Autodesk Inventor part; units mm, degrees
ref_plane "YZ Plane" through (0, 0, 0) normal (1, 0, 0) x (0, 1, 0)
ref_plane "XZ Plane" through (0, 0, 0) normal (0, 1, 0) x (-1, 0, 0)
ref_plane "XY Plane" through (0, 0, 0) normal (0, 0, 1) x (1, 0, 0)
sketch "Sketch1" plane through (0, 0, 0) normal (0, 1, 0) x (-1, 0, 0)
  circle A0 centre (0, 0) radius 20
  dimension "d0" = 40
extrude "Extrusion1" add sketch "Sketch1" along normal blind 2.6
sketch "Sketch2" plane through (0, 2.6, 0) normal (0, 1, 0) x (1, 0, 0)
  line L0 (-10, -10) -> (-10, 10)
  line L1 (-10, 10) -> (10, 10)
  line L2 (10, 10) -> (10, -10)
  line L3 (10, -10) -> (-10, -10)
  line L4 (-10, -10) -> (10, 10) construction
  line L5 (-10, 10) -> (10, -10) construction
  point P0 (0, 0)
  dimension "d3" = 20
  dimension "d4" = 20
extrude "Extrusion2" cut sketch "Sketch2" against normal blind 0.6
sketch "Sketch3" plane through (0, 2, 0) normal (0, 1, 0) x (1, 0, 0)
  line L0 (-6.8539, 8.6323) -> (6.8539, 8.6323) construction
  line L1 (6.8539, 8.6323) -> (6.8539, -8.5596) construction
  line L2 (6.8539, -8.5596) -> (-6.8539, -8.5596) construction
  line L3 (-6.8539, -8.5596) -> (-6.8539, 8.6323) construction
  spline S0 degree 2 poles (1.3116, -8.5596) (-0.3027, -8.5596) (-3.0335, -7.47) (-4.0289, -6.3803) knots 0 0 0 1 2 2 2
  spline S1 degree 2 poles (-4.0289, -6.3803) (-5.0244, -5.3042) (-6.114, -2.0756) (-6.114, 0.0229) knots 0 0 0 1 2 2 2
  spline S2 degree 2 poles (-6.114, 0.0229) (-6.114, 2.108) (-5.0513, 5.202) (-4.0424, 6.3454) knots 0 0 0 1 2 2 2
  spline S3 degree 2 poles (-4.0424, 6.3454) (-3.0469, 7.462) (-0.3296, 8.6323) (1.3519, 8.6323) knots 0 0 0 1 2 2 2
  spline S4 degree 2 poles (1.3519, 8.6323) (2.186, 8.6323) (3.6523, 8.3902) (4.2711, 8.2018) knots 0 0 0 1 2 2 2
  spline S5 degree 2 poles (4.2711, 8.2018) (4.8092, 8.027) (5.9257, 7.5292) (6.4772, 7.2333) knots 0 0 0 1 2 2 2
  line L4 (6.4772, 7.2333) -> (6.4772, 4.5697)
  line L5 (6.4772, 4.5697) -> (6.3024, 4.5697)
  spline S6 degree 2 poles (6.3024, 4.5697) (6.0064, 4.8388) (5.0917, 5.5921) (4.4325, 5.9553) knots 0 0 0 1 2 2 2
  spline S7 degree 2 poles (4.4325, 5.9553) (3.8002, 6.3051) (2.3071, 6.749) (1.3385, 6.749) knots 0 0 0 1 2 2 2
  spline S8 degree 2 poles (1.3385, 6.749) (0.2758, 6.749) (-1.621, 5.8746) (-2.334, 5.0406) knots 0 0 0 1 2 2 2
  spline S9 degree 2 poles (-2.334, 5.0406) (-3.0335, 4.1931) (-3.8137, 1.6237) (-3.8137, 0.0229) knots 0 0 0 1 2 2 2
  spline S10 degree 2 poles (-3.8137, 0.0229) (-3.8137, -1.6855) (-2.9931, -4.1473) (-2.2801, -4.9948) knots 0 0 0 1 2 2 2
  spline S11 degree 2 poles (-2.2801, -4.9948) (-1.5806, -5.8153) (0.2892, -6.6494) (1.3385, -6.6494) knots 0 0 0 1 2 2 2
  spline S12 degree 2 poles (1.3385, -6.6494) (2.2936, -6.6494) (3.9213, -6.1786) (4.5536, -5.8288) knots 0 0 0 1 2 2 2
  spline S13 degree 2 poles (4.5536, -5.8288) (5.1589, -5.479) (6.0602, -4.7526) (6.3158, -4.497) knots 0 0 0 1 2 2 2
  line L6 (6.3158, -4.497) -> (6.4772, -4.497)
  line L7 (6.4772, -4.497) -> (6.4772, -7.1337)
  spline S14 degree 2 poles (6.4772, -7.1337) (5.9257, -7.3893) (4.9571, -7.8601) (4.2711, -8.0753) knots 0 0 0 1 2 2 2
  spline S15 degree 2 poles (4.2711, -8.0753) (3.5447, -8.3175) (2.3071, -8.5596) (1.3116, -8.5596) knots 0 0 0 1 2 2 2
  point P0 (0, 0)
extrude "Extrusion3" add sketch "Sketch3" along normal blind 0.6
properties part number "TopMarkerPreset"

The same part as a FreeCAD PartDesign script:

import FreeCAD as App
import Part
import Sketcher
Q = App.Units.Quantity


def add_polygon(sketch, points):
    """Adds a closed chain of lines whose ends are joined by coincident constraints."""
    first, n = sketch.GeometryCount, len(points)
    for a, b in zip(points, points[1:] + points[:1]):
        sketch.addGeometry(Part.LineSegment(App.Vector(*a, 0), App.Vector(*b, 0)), False)
    for i in range(n):
        sketch.addConstraint(Sketcher.Constraint("Coincident", first + i, 2, first + (i + 1) % n, 1))

doc = App.newDocument("Part")
body = doc.addObject("PartDesign::Body", "Body")

# Sketch on XZ plane
sketch1 = body.newObject("Sketcher::SketchObject", "Sketch")
sketch1.AttachmentSupport = (doc.getObject("XZ_Plane"), [""])
sketch1.MapMode = "FlatFace"
sketch1.addGeometry(Part.Circle(App.Vector(0, 0, 0), App.Vector(0, 0, 1), 20), False)
sketch1.addConstraint(Sketcher.Constraint("Coincident", 0, 3, -1, 1))
sketch1.addConstraint(Sketcher.Constraint("Diameter", 0, Q("40 mm")))
pad1 = body.newObject("PartDesign::Pad", "Pad")
pad1.Profile = sketch1
pad1.Length = 2.6
pad1.Reversed = True

# Sketch on XZ plane
sketch2 = body.newObject("Sketcher::SketchObject", "Sketch001")
sketch2.AttachmentSupport = (doc.getObject("XZ_Plane"), [""])
sketch2.MapMode = "FlatFace"
sketch2.AttachmentOffset = App.Placement(App.Vector(0, 0, -2.6), App.Rotation())
add_polygon(sketch2, [(-10, -10), (-10, 10), (10, 10), (10, -10)])  # lines 0-3
sketch2.addConstraint(Sketcher.Constraint("Vertical", 0))
sketch2.addConstraint(Sketcher.Constraint("Horizontal", 1))
sketch2.addConstraint(Sketcher.Constraint("Vertical", 2))
sketch2.addConstraint(Sketcher.Constraint("Horizontal", 3))
sketch2.addConstraint(Sketcher.Constraint("Symmetric", 0, 2, 2, 2, -1, 1))
sketch2.addConstraint(Sketcher.Constraint("Equal", 3, 0))
sketch2.addConstraint(Sketcher.Constraint("DistanceX", 1, 1, 1, 2, Q("20 mm")))
pocket1 = body.newObject("PartDesign::Pocket", "Pocket")
pocket1.Profile = sketch2
pocket1.Length = 0.6
pocket1.Reversed = True

# Sketch on XZ plane
sketch3 = body.newObject("Sketcher::SketchObject", "Sketch002")
sketch3.AttachmentSupport = (doc.getObject("XZ_Plane"), [""])
sketch3.MapMode = "FlatFace"
sketch3.AttachmentOffset = App.Placement(App.Vector(0, 0, -2), App.Rotation())
sketch3.addGeometry(Part.BSplineCurve([App.Vector(1.3116, 8.5596, 0), App.Vector(-0.3027, 8.5596, 0), App.Vector(-3.0335, 7.47, 0), App.Vector(-4.0289, 6.3803, 0)], [3, 1, 3], [0, 1, 2], False, 2, [1, 1, 1, 1], False), False)
sketch3.addGeometry(Part.BSplineCurve([App.Vector(4.2711, 8.0753, 0), App.Vector(3.5447, 8.3175, 0), App.Vector(2.3071, 8.5596, 0), App.Vector(1.3116, 8.5596, 0)], [3, 1, 3], [0, 1, 2], False, 2, [1, 1, 1, 1], False), False)
sketch3.addGeometry(Part.BSplineCurve([App.Vector(6.4772, 7.1337, 0), App.Vector(5.9257, 7.3893, 0), App.Vector(4.9571, 7.8601, 0), App.Vector(4.2711, 8.0753, 0)], [3, 1, 3], [0, 1, 2], False, 2, [1, 1, 1, 1], False), False)
sketch3.addGeometry(Part.LineSegment(App.Vector(6.4772, 7.1337, 0), App.Vector(6.4772, 4.497, 0)), False)
sketch3.addGeometry(Part.LineSegment(App.Vector(6.4772, 4.497, 0), App.Vector(6.3158, 4.497, 0)), False)
sketch3.addGeometry(Part.BSplineCurve([App.Vector(4.5536, 5.8288, 0), App.Vector(5.1589, 5.479, 0), App.Vector(6.0602, 4.7526, 0), App.Vector(6.3158, 4.497, 0)], [3, 1, 3], [0, 1, 2], False, 2, [1, 1, 1, 1], False), False)
sketch3.addGeometry(Part.BSplineCurve([App.Vector(1.3385, 6.6494, 0), App.Vector(2.2936, 6.6494, 0), App.Vector(3.9213, 6.1786, 0), App.Vector(4.5536, 5.8288, 0)], [3, 1, 3], [0, 1, 2], False, 2, [1, 1, 1, 1], False), False)
sketch3.addGeometry(Part.BSplineCurve([App.Vector(-2.2801, 4.9948, 0), App.Vector(-1.5806, 5.8153, 0), App.Vector(0.2892, 6.6494, 0), App.Vector(1.3385, 6.6494, 0)], [3, 1, 3], [0, 1, 2], False, 2, [1, 1, 1, 1], False), False)
sketch3.addGeometry(Part.BSplineCurve([App.Vector(-3.8137, -0.0229, 0), App.Vector(-3.8137, 1.6855, 0), App.Vector(-2.9931, 4.1473, 0), App.Vector(-2.2801, 4.9948, 0)], [3, 1, 3], [0, 1, 2], False, 2, [1, 1, 1, 1], False), False)
sketch3.addGeometry(Part.BSplineCurve([App.Vector(-2.334, -5.0406, 0), App.Vector(-3.0335, -4.1931, 0), App.Vector(-3.8137, -1.6237, 0), App.Vector(-3.8137, -0.0229, 0)], [3, 1, 3], [0, 1, 2], False, 2, [1, 1, 1, 1], False), False)
sketch3.addGeometry(Part.BSplineCurve([App.Vector(1.3385, -6.749, 0), App.Vector(0.2758, -6.749, 0), App.Vector(-1.621, -5.8746, 0), App.Vector(-2.334, -5.0406, 0)], [3, 1, 3], [0, 1, 2], False, 2, [1, 1, 1, 1], False), False)
sketch3.addGeometry(Part.BSplineCurve([App.Vector(4.4325, -5.9553, 0), App.Vector(3.8002, -6.3051, 0), App.Vector(2.3071, -6.749, 0), App.Vector(1.3385, -6.749, 0)], [3, 1, 3], [0, 1, 2], False, 2, [1, 1, 1, 1], False), False)
sketch3.addGeometry(Part.BSplineCurve([App.Vector(6.3024, -4.5697, 0), App.Vector(6.0064, -4.8388, 0), App.Vector(5.0917, -5.5921, 0), App.Vector(4.4325, -5.9553, 0)], [3, 1, 3], [0, 1, 2], False, 2, [1, 1, 1, 1], False), False)
sketch3.addGeometry(Part.LineSegment(App.Vector(6.3024, -4.5697, 0), App.Vector(6.4772, -4.5697, 0)), False)
sketch3.addGeometry(Part.LineSegment(App.Vector(6.4772, -4.5697, 0), App.Vector(6.4772, -7.2333, 0)), False)
sketch3.addGeometry(Part.BSplineCurve([App.Vector(4.2711, -8.2018, 0), App.Vector(4.8092, -8.027, 0), App.Vector(5.9257, -7.5292, 0), App.Vector(6.4772, -7.2333, 0)], [3, 1, 3], [0, 1, 2], False, 2, [1, 1, 1, 1], False), False)
sketch3.addGeometry(Part.BSplineCurve([App.Vector(1.3519, -8.6323, 0), App.Vector(2.186, -8.6323, 0), App.Vector(3.6523, -8.3902, 0), App.Vector(4.2711, -8.2018, 0)], [3, 1, 3], [0, 1, 2], False, 2, [1, 1, 1, 1], False), False)
sketch3.addGeometry(Part.BSplineCurve([App.Vector(-4.0424, -6.3454, 0), App.Vector(-3.0469, -7.462, 0), App.Vector(-0.3296, -8.6323, 0), App.Vector(1.3519, -8.6323, 0)], [3, 1, 3], [0, 1, 2], False, 2, [1, 1, 1, 1], False), False)
sketch3.addGeometry(Part.BSplineCurve([App.Vector(-6.114, -0.0229, 0), App.Vector(-6.114, -2.108, 0), App.Vector(-5.0513, -5.202, 0), App.Vector(-4.0424, -6.3454, 0)], [3, 1, 3], [0, 1, 2], False, 2, [1, 1, 1, 1], False), False)
sketch3.addGeometry(Part.BSplineCurve([App.Vector(-4.0289, 6.3803, 0), App.Vector(-5.0244, 5.3042, 0), App.Vector(-6.114, 2.0756, 0), App.Vector(-6.114, -0.0229, 0)], [3, 1, 3], [0, 1, 2], False, 2, [1, 1, 1, 1], False), False)
sketch3.addConstraint(Sketcher.Constraint("Block", 0))
sketch3.addConstraint(Sketcher.Constraint("Block", 1))
sketch3.addConstraint(Sketcher.Constraint("Block", 2))
sketch3.addConstraint(Sketcher.Constraint("Block", 5))
sketch3.addConstraint(Sketcher.Constraint("Block", 6))
sketch3.addConstraint(Sketcher.Constraint("Block", 7))
sketch3.addConstraint(Sketcher.Constraint("Block", 8))
sketch3.addConstraint(Sketcher.Constraint("Block", 9))
sketch3.addConstraint(Sketcher.Constraint("Block", 10))
sketch3.addConstraint(Sketcher.Constraint("Block", 11))
sketch3.addConstraint(Sketcher.Constraint("Block", 12))
sketch3.addConstraint(Sketcher.Constraint("Block", 15))
sketch3.addConstraint(Sketcher.Constraint("Block", 16))
sketch3.addConstraint(Sketcher.Constraint("Block", 17))
sketch3.addConstraint(Sketcher.Constraint("Block", 18))
sketch3.addConstraint(Sketcher.Constraint("Block", 19))
sketch3.addConstraint(Sketcher.Constraint("Coincident", 2, 1, 3, 1))
sketch3.addConstraint(Sketcher.Constraint("Coincident", 3, 2, 4, 1))
sketch3.addConstraint(Sketcher.Constraint("Coincident", 4, 2, 5, 2))
sketch3.addConstraint(Sketcher.Constraint("Coincident", 12, 1, 13, 1))
sketch3.addConstraint(Sketcher.Constraint("Coincident", 13, 2, 14, 1))
sketch3.addConstraint(Sketcher.Constraint("Coincident", 14, 2, 15, 2))
sketch3.addConstraint(Sketcher.Constraint("Vertical", 3))
sketch3.addConstraint(Sketcher.Constraint("Horizontal", 4))
sketch3.addConstraint(Sketcher.Constraint("Horizontal", 13))
sketch3.addConstraint(Sketcher.Constraint("Vertical", 14))
pad2 = body.newObject("PartDesign::Pad", "Pad001")
pad2.Profile = sketch3
pad2.Length = 0.6
pad2.Reversed = True

doc.recompute()
